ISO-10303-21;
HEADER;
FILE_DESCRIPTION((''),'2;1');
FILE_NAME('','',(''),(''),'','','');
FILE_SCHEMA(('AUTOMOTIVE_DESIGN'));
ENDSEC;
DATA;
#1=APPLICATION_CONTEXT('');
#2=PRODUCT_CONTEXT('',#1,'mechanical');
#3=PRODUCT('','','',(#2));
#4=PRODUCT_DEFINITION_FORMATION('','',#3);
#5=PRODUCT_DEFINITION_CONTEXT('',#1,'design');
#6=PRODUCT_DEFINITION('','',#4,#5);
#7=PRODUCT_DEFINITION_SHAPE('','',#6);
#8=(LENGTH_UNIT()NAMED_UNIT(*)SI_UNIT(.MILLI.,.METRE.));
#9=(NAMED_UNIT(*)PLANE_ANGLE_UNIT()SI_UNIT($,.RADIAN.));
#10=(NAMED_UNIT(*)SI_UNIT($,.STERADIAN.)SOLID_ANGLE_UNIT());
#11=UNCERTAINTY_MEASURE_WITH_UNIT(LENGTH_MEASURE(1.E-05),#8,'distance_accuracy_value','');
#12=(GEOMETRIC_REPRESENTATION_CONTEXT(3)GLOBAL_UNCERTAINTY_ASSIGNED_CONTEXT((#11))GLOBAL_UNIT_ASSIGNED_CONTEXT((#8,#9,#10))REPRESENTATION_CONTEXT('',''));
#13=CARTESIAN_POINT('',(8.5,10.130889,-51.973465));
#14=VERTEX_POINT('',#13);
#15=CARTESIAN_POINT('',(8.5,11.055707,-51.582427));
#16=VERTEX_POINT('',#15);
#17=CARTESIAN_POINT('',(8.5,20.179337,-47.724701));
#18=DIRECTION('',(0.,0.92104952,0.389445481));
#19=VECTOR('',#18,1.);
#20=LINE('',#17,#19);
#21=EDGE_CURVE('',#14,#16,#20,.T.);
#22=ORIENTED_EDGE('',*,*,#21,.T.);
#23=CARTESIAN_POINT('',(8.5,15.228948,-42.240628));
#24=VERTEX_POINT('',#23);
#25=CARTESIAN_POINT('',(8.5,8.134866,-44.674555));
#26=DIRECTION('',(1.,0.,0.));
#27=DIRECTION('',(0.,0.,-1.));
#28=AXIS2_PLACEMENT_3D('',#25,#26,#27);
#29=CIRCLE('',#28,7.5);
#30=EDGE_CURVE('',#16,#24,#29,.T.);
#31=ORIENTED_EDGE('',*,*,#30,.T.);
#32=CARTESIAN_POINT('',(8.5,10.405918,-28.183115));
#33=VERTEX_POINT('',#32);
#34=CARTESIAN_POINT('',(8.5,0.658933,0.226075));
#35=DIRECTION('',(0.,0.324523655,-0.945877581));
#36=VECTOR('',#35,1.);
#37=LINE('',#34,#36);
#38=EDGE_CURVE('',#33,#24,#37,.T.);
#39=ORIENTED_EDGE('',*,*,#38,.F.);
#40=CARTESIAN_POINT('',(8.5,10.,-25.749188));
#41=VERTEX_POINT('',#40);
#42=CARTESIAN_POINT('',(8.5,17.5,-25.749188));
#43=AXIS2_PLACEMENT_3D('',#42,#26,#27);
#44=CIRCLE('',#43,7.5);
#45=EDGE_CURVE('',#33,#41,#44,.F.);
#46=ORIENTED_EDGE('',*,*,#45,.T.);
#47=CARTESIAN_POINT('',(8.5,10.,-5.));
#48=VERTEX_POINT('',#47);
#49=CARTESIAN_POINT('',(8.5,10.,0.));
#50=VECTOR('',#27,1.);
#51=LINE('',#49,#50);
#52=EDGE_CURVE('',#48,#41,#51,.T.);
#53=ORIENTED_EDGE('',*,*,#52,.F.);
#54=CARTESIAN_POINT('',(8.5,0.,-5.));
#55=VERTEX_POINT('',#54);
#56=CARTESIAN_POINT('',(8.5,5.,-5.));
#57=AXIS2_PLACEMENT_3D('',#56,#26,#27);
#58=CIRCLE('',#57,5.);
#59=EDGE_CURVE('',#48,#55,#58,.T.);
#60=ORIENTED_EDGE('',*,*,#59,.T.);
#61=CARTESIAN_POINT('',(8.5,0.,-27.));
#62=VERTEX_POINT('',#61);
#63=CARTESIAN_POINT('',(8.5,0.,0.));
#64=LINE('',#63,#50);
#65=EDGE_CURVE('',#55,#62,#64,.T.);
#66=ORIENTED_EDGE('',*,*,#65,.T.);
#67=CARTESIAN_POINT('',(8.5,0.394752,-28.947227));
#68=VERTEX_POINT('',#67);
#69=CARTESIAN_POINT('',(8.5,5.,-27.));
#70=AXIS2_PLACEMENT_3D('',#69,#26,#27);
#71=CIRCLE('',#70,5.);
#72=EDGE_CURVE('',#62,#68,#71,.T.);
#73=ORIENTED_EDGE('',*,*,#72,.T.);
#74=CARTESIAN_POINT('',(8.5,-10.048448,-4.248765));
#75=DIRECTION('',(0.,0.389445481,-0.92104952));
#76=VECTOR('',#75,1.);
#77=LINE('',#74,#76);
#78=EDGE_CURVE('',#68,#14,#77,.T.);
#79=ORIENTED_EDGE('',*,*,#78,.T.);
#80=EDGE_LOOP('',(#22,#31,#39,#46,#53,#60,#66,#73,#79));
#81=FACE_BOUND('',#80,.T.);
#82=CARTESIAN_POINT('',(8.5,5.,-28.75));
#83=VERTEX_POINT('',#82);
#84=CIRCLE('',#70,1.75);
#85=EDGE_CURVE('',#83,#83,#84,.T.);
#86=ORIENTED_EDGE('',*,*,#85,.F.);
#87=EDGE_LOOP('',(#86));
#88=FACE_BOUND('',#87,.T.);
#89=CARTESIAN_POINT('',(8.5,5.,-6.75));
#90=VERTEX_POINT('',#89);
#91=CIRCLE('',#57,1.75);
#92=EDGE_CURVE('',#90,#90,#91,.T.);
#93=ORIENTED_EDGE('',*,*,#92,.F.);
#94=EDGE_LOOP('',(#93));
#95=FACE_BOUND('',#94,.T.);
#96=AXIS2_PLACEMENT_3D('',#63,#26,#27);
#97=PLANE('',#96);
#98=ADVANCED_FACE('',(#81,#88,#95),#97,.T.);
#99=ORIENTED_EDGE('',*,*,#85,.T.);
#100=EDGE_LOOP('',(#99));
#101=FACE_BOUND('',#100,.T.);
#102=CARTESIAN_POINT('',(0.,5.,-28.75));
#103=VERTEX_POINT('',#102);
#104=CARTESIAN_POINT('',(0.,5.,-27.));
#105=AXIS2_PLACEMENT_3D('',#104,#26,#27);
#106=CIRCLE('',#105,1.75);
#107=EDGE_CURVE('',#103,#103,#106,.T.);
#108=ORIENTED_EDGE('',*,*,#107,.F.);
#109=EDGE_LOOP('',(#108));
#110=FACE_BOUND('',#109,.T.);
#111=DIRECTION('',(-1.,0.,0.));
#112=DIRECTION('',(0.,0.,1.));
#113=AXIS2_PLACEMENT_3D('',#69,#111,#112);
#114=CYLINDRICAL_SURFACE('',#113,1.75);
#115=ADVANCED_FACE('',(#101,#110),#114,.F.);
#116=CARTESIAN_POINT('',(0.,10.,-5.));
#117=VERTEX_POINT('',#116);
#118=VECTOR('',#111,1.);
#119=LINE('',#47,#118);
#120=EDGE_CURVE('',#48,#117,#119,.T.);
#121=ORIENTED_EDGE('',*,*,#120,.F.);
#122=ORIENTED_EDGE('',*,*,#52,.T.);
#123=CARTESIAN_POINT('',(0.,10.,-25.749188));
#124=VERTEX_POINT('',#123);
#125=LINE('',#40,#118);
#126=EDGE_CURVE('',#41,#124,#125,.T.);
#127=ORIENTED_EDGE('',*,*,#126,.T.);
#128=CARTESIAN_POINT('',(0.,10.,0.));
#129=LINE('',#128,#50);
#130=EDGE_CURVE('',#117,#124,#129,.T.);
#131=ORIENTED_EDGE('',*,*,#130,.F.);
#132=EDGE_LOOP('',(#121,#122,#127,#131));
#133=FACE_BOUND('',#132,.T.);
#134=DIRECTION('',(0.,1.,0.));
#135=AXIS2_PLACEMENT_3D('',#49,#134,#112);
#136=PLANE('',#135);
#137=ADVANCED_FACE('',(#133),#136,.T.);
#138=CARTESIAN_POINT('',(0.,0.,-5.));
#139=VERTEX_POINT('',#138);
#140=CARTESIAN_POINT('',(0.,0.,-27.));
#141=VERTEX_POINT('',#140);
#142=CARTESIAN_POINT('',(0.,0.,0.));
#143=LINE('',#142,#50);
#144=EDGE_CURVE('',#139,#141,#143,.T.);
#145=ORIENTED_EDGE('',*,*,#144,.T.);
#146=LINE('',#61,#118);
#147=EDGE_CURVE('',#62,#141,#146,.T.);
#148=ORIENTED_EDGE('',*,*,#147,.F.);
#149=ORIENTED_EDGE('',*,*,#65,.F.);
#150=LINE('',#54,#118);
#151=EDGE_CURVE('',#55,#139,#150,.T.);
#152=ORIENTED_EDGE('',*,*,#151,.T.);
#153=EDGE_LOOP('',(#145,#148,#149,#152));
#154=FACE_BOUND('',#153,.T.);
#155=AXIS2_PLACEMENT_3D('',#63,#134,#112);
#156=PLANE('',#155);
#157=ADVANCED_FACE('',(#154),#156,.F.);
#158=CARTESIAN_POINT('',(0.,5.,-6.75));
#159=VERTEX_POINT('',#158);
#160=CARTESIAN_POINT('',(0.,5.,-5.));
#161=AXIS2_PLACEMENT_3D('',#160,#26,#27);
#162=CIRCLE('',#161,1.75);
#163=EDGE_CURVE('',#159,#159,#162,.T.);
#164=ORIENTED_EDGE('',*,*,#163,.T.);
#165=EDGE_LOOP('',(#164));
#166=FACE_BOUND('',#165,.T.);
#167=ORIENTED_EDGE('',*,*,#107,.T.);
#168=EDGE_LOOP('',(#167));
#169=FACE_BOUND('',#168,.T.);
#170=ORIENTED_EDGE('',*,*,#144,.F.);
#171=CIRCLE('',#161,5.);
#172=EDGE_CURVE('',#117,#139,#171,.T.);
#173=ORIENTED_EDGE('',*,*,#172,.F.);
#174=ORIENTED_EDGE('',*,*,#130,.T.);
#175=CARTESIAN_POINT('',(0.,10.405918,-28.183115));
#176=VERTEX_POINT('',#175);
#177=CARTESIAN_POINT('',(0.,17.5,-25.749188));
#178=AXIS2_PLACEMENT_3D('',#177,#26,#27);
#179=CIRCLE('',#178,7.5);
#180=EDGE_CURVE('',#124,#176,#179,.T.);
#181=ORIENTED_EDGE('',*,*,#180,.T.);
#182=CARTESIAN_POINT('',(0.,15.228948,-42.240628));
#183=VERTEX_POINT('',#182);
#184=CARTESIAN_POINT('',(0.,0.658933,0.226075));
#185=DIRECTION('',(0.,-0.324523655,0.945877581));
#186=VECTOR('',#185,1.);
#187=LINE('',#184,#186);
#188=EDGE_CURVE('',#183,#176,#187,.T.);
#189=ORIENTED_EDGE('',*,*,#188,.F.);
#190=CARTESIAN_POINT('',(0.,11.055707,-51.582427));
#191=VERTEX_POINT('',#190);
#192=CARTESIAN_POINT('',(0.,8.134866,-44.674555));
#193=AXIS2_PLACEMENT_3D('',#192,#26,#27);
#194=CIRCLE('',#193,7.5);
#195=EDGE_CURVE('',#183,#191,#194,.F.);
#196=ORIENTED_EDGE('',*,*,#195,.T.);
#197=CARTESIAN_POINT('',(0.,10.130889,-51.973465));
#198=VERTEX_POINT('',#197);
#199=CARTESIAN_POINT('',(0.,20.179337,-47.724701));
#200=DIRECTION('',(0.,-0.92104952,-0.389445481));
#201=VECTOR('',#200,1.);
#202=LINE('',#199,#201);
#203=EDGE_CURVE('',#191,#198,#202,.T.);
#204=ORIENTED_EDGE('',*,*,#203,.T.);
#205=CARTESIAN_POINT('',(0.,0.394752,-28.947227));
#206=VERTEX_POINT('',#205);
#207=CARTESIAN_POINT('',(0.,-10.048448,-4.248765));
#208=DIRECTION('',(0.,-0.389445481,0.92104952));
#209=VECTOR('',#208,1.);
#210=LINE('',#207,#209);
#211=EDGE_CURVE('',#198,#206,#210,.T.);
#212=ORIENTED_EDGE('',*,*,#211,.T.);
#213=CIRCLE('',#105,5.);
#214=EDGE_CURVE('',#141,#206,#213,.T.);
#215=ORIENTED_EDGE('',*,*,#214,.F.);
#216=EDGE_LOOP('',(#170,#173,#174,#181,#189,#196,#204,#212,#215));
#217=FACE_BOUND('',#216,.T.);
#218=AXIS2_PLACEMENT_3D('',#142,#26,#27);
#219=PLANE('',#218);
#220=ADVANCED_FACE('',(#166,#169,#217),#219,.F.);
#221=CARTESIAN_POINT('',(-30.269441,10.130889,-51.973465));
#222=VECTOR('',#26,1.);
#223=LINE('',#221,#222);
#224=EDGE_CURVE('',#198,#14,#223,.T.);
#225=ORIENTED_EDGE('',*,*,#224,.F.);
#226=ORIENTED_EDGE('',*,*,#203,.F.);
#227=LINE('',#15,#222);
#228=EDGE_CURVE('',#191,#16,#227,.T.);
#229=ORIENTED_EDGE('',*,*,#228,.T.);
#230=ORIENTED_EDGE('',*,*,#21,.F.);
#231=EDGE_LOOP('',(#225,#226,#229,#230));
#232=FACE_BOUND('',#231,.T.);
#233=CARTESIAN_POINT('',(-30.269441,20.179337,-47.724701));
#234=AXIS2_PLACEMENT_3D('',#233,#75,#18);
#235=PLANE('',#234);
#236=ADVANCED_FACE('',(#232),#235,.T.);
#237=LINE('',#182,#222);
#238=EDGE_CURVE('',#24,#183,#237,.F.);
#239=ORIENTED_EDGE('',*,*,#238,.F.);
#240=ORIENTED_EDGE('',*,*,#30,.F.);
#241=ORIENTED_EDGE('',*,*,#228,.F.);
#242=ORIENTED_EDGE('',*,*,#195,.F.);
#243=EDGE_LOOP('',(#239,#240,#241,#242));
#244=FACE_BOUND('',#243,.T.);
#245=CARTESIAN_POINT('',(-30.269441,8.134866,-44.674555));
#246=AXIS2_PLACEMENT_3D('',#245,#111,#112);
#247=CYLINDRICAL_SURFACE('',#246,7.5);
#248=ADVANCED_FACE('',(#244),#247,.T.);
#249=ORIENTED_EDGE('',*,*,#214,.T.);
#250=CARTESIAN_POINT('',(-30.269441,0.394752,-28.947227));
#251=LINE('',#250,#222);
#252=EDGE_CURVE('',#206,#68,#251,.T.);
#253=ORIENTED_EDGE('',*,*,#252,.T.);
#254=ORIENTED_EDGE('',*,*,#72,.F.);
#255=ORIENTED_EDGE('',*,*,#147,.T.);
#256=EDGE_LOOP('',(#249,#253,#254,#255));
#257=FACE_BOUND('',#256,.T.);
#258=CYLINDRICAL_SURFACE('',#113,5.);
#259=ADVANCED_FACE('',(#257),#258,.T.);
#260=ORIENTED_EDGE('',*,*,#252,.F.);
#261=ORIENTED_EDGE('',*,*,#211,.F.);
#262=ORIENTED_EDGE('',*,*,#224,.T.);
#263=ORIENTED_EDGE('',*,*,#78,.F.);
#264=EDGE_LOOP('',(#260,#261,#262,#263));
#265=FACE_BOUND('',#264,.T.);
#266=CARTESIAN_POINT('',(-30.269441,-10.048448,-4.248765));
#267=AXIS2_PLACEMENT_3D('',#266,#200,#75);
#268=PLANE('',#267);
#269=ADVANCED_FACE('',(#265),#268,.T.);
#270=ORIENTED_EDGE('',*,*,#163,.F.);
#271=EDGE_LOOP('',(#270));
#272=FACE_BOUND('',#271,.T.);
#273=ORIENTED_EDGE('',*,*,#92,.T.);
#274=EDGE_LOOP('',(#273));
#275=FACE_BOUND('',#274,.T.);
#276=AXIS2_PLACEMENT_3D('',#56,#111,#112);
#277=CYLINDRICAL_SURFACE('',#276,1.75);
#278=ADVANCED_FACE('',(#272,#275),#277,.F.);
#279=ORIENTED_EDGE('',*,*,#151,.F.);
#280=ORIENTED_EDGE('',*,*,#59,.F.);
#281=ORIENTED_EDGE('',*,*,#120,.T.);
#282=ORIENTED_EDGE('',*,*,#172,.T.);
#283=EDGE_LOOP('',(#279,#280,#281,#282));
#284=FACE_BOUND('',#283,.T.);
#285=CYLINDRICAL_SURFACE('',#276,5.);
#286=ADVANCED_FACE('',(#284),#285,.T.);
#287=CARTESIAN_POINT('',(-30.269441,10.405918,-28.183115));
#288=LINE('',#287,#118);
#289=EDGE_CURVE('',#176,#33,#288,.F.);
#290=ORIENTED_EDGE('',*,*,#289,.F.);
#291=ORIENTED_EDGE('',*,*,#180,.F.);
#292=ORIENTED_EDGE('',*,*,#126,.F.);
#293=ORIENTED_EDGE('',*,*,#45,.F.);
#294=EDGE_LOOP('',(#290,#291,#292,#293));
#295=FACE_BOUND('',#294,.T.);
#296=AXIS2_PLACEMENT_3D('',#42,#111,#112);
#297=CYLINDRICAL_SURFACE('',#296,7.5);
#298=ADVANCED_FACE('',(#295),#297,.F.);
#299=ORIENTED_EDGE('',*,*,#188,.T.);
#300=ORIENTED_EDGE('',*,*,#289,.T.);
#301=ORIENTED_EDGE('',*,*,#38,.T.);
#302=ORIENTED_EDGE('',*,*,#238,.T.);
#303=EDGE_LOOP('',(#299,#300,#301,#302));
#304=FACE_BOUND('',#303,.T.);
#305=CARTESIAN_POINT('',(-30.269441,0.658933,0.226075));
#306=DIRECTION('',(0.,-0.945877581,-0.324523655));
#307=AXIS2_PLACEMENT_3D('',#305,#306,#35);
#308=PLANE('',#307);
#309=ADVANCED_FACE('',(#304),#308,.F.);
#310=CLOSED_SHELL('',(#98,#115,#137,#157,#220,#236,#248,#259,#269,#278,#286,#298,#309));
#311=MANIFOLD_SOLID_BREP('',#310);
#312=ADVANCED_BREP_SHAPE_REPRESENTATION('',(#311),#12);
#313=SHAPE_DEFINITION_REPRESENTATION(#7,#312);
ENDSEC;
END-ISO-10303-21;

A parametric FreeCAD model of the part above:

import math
import FreeCAD as App
import Part
import Sketcher
from FreeCAD import Vector
Q = App.Units.Quantity


def edges_at(feature, points):
    """Names of the edges that pass closest to the given points."""
    edges = feature.Shape.Edges
    near = lambda p: min(range(len(edges)), key=lambda i: edges[i].distToShape(Part.Vertex(*p))[0])
    return sorted({f"Edge{near(p) + 1}" for p in points})

doc = App.newDocument("Part")
body = doc.addObject("PartDesign::Body", "Body")

# Sketch on YZ plane
sketch1 = body.newObject("Sketcher::SketchObject", "Sketch")
sketch1.AttachmentSupport = (doc.getObject("YZ_Plane"), [""])
sketch1.MapMode = "FlatFace"
sketch1.addGeometry([
    Part.LineSegment(Vector(10, -27, 0), Vector(10, -5, 0)),  # 0
    Part.ArcOfCircle(Part.Circle(Vector(5, -5, 0), Vector(0, 0, 1), 5), math.radians(0), math.radians(180)),  # 1
    Part.LineSegment(Vector(0, -5, 0), Vector(0, -27, 0)),  # 2
    Part.ArcOfCircle(Part.Circle(Vector(5, -27, 0), Vector(0, 0, 1), 5), math.radians(180), math.radians(360)),  # 3
    Part.Circle(Vector(5, -5, 0), Vector(0, 0, 1), 1.8),  # 4
    Part.Circle(Vector(5, -27, 0), Vector(0, 0, 1), 1.8),  # 5
], False)
sketch1.addConstraint([
    Sketcher.Constraint("Tangent", 0, 2, 1, 1),
    Sketcher.Constraint("Tangent", 1, 2, 2, 1),
    Sketcher.Constraint("Tangent", 2, 2, 3, 1),
    Sketcher.Constraint("Tangent", 3, 2, 0, 1),
    Sketcher.Constraint("Vertical", 0),
    Sketcher.Constraint("Vertical", 2),
    Sketcher.Constraint("Coincident", 4, 3, 1, 3),
    Sketcher.Constraint("Coincident", 5, 3, 3, 3),
    Sketcher.Constraint("Equal", 4, 5),
    Sketcher.Constraint("PointOnObject", 1, 2, -2),
    Sketcher.Constraint("Radius", 1, 5.0),
    Sketcher.Constraint("Diameter", 4, 3.5),
    Sketcher.Constraint("DistanceY", 0, 1, 0, 2, 22.0),
    Sketcher.Constraint("DistanceY", 1, 3, -1, 1, 5.0),
])
pad1 = body.newObject("PartDesign::Pad", "Pad")
pad1.Profile = sketch1
pad1.Length = 8.5

# Sketch on YZ plane
sketch2 = body.newObject("Sketcher::SketchObject", "Sketch001")
sketch2.AttachmentSupport = (doc.getObject("YZ_Plane"), [""])
sketch2.MapMode = "FlatFace"
sketch2.addGeometry([
    Part.LineSegment(Vector(17, -49, 0), Vector(10, -27, 0)),
    Part.ArcOfCircle(Part.Circle(Vector(5, -27, 0), Vector(0, 0, 1), 5), math.radians(-157), math.radians(0)),
    Part.LineSegment(Vector(0, -29, 0), Vector(10, -52, 0)),
    Part.LineSegment(Vector(10, -52, 0), Vector(17, -49, 0)),
], False)
sketch2.addConstraint([
    Sketcher.Constraint("Coincident", 0, 2, 1, 2),
    Sketcher.Constraint("Tangent", 1, 1, 2, 1),
    Sketcher.Constraint("Coincident", 2, 2, 3, 1),
    Sketcher.Constraint("Coincident", 3, 2, 0, 1),
    Sketcher.Constraint("Perpendicular", 2, 3),
    Sketcher.Constraint("Horizontal", 1, 3, 0, 2),
    Sketcher.Constraint("Radius", 1, 5.0),
    Sketcher.Constraint("Distance", 2, 25.0),
    Sketcher.Constraint("Distance", 3, 8.0),
    Sketcher.Constraint("DistanceX", -1, 1, 1, 3, 5.0),
    Sketcher.Constraint("DistanceY", 1, 3, -1, 1, 27.0),
    Sketcher.Constraint("Angle", 2, Q("-67.08 deg")),
])
pad2 = body.newObject("PartDesign::Pad", "Pad001")
pad2.Profile = sketch2
pad2.Length = 8.5
doc.recompute()

fillet = body.newObject("PartDesign::Fillet", "Fillet")
fillet.Base = (pad2, edges_at(pad2, [(4.25, 10, -27), (4.25, 17.499, -48.858)]))
fillet.Radius = 7.5

doc.recompute()
